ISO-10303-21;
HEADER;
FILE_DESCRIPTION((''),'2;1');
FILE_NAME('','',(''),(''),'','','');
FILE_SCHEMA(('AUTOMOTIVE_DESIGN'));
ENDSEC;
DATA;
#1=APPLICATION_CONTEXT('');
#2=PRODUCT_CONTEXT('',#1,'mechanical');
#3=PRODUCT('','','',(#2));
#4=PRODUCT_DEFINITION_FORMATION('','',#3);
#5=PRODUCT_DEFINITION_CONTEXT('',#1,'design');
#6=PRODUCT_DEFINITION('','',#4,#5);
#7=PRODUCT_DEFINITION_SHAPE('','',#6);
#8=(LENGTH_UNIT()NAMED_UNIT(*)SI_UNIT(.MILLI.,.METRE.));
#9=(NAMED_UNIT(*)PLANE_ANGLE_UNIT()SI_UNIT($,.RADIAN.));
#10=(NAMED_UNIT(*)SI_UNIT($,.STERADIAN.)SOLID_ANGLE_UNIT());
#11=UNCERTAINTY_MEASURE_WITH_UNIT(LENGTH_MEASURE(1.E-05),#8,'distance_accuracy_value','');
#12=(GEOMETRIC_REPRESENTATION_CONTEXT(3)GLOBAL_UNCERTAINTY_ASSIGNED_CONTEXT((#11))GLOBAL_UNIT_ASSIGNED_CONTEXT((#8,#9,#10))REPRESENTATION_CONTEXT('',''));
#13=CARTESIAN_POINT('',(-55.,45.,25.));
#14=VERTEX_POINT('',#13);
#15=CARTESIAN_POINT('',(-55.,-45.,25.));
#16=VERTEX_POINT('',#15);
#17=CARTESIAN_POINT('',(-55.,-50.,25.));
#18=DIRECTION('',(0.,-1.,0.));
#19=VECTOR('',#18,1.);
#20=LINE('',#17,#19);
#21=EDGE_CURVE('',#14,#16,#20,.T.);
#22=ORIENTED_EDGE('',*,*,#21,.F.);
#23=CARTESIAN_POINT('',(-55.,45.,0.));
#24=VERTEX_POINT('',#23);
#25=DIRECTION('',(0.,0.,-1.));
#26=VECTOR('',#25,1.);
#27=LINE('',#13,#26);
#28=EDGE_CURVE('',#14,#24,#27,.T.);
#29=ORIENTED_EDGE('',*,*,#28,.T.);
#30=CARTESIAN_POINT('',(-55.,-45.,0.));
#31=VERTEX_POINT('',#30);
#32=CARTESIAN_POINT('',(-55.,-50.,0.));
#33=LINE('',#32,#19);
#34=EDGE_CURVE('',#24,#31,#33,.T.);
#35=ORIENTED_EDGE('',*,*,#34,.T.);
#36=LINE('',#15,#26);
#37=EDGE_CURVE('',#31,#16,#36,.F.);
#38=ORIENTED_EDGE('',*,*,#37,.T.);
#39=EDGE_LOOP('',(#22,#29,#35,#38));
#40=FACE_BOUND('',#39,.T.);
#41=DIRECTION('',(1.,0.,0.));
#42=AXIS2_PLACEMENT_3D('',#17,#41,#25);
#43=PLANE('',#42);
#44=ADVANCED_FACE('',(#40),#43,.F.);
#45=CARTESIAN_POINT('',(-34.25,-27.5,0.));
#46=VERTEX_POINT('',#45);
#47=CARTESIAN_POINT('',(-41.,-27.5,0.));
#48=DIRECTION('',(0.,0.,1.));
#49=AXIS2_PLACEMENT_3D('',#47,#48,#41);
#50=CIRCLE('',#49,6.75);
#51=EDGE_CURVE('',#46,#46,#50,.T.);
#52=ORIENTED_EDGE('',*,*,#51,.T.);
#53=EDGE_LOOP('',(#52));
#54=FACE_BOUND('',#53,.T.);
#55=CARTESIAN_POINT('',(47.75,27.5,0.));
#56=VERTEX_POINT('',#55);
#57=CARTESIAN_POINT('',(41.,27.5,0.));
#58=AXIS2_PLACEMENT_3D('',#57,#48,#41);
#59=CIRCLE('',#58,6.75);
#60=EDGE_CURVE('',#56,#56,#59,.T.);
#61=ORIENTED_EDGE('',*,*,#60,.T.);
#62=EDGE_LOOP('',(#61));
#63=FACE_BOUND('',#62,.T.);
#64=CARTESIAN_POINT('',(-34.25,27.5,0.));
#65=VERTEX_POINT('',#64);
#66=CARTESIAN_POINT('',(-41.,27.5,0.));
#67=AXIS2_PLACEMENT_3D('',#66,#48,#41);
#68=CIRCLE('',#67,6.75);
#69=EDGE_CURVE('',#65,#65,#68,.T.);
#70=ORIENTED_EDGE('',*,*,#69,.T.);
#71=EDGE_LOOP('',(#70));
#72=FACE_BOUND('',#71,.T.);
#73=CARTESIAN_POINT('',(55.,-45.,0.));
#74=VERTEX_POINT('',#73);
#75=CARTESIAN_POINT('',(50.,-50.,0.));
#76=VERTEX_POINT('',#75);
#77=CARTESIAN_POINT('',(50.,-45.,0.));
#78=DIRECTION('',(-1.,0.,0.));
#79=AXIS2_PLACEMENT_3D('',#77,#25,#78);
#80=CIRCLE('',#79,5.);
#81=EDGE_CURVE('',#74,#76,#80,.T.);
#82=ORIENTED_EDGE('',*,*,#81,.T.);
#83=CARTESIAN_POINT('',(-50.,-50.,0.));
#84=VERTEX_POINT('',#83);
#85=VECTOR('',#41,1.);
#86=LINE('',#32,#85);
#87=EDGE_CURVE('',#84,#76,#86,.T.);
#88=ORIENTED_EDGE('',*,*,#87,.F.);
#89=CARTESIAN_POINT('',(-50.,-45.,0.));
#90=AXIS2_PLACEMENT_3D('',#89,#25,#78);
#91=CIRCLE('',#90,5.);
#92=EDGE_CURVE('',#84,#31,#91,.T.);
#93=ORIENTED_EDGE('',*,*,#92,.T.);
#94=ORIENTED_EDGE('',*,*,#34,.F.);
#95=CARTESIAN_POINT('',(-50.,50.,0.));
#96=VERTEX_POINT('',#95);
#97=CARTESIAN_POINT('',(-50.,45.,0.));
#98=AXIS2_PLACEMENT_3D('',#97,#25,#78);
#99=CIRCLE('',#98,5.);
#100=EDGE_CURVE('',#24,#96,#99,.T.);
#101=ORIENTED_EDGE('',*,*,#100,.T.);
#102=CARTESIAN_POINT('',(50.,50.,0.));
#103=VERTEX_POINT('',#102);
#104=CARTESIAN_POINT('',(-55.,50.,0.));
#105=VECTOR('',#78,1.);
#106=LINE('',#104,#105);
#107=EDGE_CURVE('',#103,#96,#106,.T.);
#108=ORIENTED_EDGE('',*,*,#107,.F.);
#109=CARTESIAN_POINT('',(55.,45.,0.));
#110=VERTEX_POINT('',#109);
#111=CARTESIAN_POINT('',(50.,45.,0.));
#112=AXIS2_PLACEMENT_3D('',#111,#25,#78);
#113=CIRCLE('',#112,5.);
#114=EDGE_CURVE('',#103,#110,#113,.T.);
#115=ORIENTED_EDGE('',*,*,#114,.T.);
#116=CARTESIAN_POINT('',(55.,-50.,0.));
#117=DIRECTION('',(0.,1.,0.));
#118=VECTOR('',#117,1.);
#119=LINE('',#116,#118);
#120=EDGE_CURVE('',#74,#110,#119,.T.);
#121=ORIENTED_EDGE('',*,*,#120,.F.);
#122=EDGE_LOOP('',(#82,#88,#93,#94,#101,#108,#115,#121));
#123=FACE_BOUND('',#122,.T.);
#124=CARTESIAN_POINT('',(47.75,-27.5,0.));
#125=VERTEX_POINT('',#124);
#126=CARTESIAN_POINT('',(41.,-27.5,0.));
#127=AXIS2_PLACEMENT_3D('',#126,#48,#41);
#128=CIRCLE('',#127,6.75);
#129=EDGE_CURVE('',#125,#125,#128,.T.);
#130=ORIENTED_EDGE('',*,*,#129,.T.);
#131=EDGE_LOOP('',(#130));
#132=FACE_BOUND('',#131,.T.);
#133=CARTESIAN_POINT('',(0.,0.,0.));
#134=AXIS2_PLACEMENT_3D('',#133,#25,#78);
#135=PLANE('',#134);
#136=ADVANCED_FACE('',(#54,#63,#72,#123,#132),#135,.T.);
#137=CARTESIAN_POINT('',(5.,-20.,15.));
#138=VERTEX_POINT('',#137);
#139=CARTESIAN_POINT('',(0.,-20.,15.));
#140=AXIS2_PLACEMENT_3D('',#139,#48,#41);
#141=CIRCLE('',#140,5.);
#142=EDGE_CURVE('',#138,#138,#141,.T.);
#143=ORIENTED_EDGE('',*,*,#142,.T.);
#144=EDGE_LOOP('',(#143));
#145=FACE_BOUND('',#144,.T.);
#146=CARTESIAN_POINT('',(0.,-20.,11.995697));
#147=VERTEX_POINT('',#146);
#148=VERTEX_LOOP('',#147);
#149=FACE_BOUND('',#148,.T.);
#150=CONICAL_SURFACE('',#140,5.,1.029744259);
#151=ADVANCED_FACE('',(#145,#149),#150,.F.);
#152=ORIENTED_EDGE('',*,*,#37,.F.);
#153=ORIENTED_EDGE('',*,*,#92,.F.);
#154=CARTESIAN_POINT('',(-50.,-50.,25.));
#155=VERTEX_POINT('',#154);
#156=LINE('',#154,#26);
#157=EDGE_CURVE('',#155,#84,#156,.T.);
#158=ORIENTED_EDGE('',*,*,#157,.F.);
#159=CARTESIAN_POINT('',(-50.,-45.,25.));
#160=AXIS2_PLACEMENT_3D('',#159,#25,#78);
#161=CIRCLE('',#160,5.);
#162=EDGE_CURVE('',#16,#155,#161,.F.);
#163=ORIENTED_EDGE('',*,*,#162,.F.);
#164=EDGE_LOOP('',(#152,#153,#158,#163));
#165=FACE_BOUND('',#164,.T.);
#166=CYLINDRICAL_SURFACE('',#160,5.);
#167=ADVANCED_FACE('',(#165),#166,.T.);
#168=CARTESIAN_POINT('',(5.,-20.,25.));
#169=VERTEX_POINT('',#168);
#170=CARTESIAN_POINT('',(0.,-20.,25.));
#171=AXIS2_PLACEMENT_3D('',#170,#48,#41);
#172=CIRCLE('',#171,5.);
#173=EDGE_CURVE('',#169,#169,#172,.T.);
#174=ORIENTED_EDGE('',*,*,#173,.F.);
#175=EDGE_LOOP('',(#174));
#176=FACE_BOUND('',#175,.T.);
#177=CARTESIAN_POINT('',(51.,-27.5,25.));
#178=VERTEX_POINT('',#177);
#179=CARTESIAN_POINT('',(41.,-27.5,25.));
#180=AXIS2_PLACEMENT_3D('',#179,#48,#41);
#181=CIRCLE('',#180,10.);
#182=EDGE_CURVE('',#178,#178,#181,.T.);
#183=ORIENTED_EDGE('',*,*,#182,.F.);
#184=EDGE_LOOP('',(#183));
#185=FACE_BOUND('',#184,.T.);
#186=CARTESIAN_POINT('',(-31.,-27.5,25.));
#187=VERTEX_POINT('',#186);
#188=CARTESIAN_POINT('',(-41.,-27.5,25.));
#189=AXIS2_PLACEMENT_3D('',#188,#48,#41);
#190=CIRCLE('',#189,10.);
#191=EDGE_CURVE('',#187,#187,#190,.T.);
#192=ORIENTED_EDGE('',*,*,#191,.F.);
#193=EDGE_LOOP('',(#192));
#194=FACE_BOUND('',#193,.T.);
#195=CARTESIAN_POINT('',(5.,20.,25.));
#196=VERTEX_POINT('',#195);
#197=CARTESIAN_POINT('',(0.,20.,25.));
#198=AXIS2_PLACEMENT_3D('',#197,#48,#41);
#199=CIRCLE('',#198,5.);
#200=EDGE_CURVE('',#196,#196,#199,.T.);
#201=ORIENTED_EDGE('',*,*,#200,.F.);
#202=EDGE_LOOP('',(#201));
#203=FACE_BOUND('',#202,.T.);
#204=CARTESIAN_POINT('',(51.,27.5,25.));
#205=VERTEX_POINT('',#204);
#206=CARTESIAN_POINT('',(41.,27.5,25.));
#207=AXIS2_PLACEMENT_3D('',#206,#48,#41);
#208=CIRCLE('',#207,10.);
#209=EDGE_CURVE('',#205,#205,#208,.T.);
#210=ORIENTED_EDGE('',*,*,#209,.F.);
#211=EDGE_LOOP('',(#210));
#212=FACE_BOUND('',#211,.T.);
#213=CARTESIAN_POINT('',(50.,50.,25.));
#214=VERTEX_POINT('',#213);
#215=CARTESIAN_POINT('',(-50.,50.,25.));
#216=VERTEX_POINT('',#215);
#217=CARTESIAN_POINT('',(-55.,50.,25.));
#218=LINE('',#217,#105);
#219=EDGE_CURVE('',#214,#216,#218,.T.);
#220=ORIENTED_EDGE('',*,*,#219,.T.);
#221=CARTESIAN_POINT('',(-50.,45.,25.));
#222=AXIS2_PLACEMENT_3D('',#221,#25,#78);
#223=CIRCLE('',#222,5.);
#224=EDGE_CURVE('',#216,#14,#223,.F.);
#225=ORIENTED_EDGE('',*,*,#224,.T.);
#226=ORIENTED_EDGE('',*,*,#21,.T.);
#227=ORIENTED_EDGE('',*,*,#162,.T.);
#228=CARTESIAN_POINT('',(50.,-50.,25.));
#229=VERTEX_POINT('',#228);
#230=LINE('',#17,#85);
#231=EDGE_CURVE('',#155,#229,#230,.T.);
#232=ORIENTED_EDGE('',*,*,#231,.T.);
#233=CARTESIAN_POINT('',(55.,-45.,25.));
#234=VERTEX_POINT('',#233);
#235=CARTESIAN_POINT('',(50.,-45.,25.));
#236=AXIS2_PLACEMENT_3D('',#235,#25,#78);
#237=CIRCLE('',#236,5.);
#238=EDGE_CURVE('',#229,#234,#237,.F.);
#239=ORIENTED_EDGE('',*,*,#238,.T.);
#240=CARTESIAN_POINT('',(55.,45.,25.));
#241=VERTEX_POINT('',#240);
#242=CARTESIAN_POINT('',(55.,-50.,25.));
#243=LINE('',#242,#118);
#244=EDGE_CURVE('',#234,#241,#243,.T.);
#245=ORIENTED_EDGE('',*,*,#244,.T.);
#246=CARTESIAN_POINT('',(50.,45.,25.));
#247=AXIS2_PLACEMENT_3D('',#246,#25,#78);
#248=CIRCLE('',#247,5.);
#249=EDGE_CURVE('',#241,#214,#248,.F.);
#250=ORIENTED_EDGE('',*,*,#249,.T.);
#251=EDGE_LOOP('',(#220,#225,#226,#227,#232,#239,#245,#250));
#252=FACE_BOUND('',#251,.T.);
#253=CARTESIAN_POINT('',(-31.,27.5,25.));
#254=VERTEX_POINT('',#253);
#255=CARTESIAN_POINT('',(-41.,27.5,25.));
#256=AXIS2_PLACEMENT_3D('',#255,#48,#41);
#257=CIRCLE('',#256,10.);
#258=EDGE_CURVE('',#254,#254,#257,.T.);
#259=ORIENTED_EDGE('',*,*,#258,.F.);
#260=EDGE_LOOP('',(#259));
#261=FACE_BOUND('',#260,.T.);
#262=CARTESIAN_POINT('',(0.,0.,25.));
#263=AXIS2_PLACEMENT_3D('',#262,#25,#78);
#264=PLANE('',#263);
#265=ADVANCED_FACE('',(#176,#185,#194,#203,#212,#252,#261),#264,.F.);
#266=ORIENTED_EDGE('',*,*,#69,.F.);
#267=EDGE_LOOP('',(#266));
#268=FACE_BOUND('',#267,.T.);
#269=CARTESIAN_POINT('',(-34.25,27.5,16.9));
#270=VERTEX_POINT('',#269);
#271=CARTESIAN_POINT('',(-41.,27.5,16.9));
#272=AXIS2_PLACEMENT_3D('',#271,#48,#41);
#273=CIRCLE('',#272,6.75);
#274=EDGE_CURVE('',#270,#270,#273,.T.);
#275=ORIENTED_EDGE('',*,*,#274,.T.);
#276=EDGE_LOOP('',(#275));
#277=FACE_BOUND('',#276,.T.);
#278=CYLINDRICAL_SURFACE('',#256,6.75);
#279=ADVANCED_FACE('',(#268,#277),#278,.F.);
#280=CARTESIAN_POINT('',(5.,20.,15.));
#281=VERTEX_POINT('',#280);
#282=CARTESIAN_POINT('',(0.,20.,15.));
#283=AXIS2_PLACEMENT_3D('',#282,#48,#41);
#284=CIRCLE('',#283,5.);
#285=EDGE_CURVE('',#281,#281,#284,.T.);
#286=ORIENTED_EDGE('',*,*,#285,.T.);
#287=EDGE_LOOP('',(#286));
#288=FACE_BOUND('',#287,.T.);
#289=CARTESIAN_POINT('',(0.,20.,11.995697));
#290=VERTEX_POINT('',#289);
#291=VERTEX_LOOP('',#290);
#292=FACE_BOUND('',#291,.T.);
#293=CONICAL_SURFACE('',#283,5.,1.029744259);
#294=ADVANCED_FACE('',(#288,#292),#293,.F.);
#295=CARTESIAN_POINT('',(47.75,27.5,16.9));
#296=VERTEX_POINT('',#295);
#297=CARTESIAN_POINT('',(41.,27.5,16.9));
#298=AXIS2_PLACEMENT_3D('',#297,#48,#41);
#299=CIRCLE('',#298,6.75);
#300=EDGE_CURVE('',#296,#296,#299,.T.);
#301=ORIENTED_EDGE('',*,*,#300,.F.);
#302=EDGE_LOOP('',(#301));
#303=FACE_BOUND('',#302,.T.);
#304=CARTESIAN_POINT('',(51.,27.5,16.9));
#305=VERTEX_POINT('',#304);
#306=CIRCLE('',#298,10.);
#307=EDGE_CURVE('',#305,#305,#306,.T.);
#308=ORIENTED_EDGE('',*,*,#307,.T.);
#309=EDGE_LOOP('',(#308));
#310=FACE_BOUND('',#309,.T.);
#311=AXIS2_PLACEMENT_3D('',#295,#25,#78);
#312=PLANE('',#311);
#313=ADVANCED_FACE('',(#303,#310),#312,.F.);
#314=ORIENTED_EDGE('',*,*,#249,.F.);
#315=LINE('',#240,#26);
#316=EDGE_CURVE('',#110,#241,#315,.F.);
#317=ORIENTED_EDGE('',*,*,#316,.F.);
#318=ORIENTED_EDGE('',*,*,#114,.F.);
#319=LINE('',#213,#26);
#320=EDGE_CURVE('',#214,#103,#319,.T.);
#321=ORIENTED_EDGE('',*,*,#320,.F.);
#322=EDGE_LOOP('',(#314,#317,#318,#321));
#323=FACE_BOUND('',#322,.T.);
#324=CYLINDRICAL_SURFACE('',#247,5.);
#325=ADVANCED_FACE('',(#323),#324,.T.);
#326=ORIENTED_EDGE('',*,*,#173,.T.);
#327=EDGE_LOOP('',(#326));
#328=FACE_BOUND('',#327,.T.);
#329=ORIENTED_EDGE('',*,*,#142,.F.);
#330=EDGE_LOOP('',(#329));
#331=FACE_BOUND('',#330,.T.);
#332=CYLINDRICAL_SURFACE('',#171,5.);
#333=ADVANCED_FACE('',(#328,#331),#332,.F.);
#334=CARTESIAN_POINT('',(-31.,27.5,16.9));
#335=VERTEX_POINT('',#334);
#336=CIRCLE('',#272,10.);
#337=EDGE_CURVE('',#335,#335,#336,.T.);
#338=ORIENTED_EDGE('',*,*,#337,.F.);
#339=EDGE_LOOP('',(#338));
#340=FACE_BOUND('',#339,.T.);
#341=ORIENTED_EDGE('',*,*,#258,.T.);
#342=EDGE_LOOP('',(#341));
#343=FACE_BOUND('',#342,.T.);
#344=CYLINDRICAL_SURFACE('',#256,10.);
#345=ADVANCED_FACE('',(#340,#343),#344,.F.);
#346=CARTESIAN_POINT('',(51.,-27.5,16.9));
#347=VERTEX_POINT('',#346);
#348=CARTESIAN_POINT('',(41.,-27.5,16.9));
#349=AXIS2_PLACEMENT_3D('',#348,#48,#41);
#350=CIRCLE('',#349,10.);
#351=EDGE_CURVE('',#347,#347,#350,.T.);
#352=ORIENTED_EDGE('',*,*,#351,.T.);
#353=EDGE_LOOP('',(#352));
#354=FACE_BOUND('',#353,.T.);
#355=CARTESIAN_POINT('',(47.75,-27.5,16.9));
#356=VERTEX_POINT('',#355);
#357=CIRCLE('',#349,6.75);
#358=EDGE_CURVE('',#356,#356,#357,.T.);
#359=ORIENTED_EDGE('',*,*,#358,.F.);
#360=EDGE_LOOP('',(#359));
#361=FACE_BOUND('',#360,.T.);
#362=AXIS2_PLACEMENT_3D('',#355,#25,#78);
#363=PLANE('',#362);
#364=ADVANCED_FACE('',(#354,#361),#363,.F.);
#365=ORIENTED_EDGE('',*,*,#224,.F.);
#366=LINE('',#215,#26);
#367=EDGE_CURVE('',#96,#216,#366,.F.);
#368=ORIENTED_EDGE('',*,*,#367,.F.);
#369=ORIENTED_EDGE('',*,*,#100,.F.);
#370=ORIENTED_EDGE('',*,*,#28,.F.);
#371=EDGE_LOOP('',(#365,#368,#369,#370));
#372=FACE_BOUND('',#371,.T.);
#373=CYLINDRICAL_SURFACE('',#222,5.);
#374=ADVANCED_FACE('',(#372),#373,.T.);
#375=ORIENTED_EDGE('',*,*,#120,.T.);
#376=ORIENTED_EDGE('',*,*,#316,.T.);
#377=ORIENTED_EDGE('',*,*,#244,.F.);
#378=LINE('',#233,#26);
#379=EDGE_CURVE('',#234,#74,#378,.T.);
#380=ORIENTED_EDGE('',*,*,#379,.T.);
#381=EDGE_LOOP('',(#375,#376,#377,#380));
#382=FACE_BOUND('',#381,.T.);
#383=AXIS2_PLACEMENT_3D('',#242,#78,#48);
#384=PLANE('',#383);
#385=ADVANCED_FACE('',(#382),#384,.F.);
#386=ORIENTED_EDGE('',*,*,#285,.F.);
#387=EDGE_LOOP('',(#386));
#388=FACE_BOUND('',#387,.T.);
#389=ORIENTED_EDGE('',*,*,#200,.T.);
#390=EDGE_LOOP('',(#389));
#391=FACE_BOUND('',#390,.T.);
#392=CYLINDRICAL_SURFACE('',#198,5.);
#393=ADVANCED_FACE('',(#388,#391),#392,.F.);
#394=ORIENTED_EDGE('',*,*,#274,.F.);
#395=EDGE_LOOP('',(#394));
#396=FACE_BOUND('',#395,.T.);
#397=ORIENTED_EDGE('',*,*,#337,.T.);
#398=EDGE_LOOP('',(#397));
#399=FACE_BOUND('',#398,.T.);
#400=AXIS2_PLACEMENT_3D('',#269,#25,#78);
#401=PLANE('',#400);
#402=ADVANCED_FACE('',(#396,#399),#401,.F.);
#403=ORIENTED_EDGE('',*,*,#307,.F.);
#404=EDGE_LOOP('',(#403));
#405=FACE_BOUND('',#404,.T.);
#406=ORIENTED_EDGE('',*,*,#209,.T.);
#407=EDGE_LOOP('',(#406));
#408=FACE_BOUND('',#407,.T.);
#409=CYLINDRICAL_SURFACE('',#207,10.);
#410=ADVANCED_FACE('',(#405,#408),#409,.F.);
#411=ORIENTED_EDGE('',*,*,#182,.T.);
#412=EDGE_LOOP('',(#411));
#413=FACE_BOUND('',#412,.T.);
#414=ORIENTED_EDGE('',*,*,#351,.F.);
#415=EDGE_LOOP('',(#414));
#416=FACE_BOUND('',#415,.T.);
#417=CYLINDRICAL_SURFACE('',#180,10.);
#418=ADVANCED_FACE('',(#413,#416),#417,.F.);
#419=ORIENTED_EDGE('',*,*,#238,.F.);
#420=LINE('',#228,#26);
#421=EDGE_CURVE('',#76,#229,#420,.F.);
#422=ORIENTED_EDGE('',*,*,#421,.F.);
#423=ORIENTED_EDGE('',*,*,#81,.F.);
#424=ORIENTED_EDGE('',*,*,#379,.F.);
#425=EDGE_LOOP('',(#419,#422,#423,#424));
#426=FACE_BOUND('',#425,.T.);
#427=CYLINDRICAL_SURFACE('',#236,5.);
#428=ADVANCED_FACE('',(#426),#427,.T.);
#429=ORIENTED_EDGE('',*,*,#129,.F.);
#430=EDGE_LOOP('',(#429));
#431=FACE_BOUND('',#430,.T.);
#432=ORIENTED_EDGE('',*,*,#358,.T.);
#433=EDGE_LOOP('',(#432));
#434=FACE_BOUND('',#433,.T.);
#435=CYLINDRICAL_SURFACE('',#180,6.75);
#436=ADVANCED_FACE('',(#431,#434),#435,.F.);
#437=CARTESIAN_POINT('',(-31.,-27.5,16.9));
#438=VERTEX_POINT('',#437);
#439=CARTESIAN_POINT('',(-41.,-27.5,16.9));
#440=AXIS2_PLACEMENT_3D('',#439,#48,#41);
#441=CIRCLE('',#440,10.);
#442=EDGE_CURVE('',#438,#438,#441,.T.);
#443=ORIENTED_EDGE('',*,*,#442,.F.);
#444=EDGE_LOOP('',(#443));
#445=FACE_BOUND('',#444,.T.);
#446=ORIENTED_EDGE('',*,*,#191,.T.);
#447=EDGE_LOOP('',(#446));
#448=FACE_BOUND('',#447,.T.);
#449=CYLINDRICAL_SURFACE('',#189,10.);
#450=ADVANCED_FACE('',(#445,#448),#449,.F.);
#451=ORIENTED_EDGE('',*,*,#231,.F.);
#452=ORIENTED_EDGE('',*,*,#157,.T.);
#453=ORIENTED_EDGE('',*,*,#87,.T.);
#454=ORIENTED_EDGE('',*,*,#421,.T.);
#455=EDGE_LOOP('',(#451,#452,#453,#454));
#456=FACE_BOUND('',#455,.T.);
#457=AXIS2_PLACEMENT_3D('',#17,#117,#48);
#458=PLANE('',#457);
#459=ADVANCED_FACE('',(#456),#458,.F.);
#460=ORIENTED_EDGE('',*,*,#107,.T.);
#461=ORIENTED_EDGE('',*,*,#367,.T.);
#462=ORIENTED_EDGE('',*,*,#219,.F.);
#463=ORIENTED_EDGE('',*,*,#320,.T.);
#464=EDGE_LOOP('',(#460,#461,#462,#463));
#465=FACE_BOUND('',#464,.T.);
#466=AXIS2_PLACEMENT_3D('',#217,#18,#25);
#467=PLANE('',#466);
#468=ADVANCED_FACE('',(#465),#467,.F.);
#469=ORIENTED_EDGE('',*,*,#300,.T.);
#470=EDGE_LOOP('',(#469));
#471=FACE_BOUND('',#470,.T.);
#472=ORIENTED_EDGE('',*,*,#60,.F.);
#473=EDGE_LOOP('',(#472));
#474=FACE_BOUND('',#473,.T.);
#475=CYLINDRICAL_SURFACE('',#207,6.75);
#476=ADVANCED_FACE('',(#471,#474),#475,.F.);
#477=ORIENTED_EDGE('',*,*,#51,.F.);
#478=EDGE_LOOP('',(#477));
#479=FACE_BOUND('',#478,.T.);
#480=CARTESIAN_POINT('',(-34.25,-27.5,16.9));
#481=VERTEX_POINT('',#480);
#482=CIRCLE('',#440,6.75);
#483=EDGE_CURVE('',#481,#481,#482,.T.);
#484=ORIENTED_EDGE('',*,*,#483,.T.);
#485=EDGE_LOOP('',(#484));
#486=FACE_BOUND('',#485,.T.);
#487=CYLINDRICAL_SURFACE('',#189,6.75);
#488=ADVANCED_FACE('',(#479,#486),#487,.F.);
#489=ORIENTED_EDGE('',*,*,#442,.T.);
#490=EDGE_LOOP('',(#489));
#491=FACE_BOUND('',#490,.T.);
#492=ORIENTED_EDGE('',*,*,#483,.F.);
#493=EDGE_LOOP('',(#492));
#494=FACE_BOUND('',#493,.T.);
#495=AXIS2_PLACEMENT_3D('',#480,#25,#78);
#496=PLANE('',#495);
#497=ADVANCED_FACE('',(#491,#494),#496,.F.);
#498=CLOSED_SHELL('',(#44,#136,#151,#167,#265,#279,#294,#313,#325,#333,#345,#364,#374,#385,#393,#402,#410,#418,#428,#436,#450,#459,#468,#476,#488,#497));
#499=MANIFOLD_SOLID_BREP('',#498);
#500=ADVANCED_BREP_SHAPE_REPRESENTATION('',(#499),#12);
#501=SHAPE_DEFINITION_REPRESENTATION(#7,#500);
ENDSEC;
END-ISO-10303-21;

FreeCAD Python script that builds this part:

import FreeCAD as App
import Part
import Sketcher

V = App.Vector


def edges_at(feature, points):
    """Names of the edges that pass closest to the given points."""
    edges = feature.Shape.Edges
    near = lambda p: min(range(len(edges)), key=lambda i: edges[i].distToShape(Part.Vertex(*p))[0])
    return sorted({f"Edge{near(p) + 1}" for p in points})


def add_polygon(sketch, points):
    """Adds a closed chain of lines whose ends are joined by coincident constraints."""
    first, n = sketch.GeometryCount, len(points)
    for a, b in zip(points, points[1:] + points[:1]):
        sketch.addGeometry(Part.LineSegment(App.Vector(*a, 0), App.Vector(*b, 0)), False)
    for i in range(n):
        sketch.addConstraint(Sketcher.Constraint("Coincident", first + i, 2, first + (i + 1) % n, 1))

doc = App.newDocument("Part")
body = doc.addObject("PartDesign::Body", "Body")

sketch1 = doc.addObject("Sketcher::SketchObject", "Sketch")
body.addObject(sketch1)
sketch1.AttachmentSupport = (doc.XY_Plane, [""])
sketch1.MapMode = "FlatFace"
add_polygon(sketch1, [(-55, 50), (-55, -50), (55, -50), (55, 50)])
sketch1.addConstraint([
    Sketcher.Constraint("Vertical", 0),
    Sketcher.Constraint("Horizontal", 1),
    Sketcher.Constraint("Vertical", 2),
    Sketcher.Constraint("Horizontal", 3),
    Sketcher.Constraint("Symmetric", 0, 2, 2, 2, -1, 1),
    Sketcher.Constraint("DistanceX", 1, 1, 1, 2, 110.0),
    Sketcher.Constraint("DistanceY", 0, 2, 0, 1, 100.0),
])
pad1 = doc.addObject("PartDesign::Pad", "Pad")
body.addObject(pad1)
pad1.Profile = sketch1
pad1.Length = 25
doc.recompute()

fillet = doc.addObject("PartDesign::Fillet", "Fillet")
body.addObject(fillet)
fillet.Base = (pad1, edges_at(pad1, [
    (55, -50, 12.5),
    (-55, -50, 12.5),
    (-55, 50, 12.5),
    (55, 50, 12.5),
]))
fillet.Radius = 5

sketch2 = doc.addObject("Sketcher::SketchObject", "Sketch001")
body.addObject(sketch2)
sketch2.AttachmentSupport = (doc.XY_Plane, [""])
sketch2.MapMode = "FlatFace"
sketch2.AttachmentOffset = App.Placement(V(0, 0, 25), App.Rotation())
sketch2.addGeometry([
    Part.Circle(V(-41, 27.5, 0), V(0, 0, 1), 6.75),
    Part.Circle(V(41, 27.5, 0), V(0, 0, 1), 6.75),
    Part.Circle(V(41, -27.5, 0), V(0, 0, 1), 6.75),
    Part.Circle(V(-41, -27.5, 0), V(0, 0, 1), 6.75),
], False)
sketch2.addConstraint([
    Sketcher.Constraint("Equal", 0, 1),
    Sketcher.Constraint("Equal", 1, 2),
    Sketcher.Constraint("Equal", 2, 3),
    Sketcher.Constraint("Symmetric", 0, 3, 2, 3, -1, 1),
    Sketcher.Constraint("Symmetric", 1, 3, 3, 3, -1, 1),
    Sketcher.Constraint("Symmetric", 0, 3, 1, 3, -2),
    Sketcher.Constraint("Diameter", 0, 13.5),
    Sketcher.Constraint("DistanceX", 0, 3, -1, 1, 41.0),
    Sketcher.Constraint("DistanceY", 2, 3, 1, 3, 55.0),
])
doc.recompute()
hole = doc.addObject("PartDesign::Hole", "Hole")
body.addObject(hole)
hole.Profile = sketch2
hole.ThreadType = "None"
hole.Diameter = 13.5
hole.DepthType = "ThroughAll"
hole.HoleCutType = "Counterbore"
hole.HoleCutDiameter = 20
hole.HoleCutDepth = 8.1

sketch3 = doc.addObject("Sketcher::SketchObject", "Sketch002")
body.addObject(sketch3)
sketch3.AttachmentSupport = (doc.XY_Plane, [""])
sketch3.MapMode = "FlatFace"
sketch3.AttachmentOffset = App.Placement(V(0, 0, 25), App.Rotation())
sketch3.addGeometry([
    Part.Circle(V(0, 20, 0), V(0, 0, 1), 5),
    Part.Circle(V(0, -20, 0), V(0, 0, 1), 5),
], False)
sketch3.addConstraint([
    Sketcher.Constraint("Equal", 0, 1),
    Sketcher.Constraint("Symmetric", 0, 3, 1, 3, -1, 1),
    Sketcher.Constraint("PointOnObject", 0, 3, -2),
    Sketcher.Constraint("Diameter", 0, 10.0),
    Sketcher.Constraint("DistanceY", -1, 1, 0, 3, 20.0),
])
doc.recompute()
hole2 = doc.addObject("PartDesign::Hole", "Hole001")
body.addObject(hole2)
hole2.Profile = sketch3
hole2.ThreadType = "None"
hole2.Diameter = 10
hole2.DepthType = "Dimension"
hole2.Depth = 10
hole2.DrillPoint = "Angled"
hole2.DrillPointAngle = 118

doc.recompute()
